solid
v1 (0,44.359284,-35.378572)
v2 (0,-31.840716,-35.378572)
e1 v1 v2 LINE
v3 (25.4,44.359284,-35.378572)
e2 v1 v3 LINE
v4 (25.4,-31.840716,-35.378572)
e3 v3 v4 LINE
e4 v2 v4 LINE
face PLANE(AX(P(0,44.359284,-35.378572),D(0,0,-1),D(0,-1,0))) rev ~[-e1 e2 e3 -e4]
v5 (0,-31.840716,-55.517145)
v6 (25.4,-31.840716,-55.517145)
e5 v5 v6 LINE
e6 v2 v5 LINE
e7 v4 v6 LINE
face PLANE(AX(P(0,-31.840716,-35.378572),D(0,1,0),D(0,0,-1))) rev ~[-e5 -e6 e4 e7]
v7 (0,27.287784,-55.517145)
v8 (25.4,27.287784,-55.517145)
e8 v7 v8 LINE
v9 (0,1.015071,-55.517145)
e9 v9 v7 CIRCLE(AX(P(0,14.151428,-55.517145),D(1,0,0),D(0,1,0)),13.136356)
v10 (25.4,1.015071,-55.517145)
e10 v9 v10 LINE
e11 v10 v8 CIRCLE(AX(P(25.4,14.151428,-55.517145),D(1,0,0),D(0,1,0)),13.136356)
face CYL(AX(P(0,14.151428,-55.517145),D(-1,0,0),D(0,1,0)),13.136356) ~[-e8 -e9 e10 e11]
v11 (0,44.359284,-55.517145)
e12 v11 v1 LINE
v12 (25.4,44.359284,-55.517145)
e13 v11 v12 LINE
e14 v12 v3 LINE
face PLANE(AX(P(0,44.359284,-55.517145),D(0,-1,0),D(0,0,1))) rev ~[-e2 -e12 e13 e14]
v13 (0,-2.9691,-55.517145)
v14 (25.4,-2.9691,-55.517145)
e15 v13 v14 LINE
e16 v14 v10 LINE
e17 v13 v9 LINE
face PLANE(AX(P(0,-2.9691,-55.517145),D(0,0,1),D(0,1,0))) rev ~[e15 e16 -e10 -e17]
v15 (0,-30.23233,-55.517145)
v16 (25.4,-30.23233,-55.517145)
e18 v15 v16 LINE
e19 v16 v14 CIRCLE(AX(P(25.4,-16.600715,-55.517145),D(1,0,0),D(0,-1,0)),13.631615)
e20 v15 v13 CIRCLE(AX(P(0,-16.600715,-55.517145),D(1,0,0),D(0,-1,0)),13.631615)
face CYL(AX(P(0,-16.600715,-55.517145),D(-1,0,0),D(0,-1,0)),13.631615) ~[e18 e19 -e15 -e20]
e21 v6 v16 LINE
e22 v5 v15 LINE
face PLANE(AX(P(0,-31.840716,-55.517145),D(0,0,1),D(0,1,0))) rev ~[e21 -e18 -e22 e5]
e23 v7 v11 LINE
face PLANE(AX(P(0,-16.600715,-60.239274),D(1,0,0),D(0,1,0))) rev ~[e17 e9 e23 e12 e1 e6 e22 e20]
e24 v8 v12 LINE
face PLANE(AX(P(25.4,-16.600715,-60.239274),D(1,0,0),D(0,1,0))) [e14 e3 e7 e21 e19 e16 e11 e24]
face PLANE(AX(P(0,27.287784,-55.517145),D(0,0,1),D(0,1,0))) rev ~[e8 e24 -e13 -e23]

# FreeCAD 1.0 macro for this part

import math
import FreeCAD as App
import Part
import Sketcher

V = App.Vector
Q = App.Units.Quantity

doc = App.newDocument("Part")
params = doc.addObject("Spreadsheet::Sheet", "Params")
for row, (alias, value) in enumerate([
    ("sketch1_width", "3 in"),
    ("pad1_length", "1 in"),
], start=1):
    params.set(f"A{row}", alias)
    params.set(f"B{row}", "=" + value)
    params.setAlias(f"B{row}", alias)

body = doc.addObject("PartDesign::Body", "Body")

# Sketch on YZ plane
sketch1 = doc.addObject("Sketcher::SketchObject", "Sketch")
body.addObject(sketch1)
sketch1.AttachmentSupport = (doc.YZ_Plane, [""])
sketch1.MapMode = "FlatFace"
sketch1.addGeometry([
    Part.ArcOfCircle(Part.Circle(V(-16.600715, -55.517145, 0), V(0, 0, 1), 13.631615), math.radians(180), math.radians(360)),  # 0
    Part.LineSegment(V(-2.9691, -55.517145, 0), V(1.015071, -55.517145, 0)),  # 1
    Part.ArcOfCircle(Part.Circle(V(14.151428, -55.517145, 0), V(0, 0, 1), 13.136356), math.radians(180), math.radians(360)),  # 2
    Part.LineSegment(V(27.287784, -55.517145, 0), V(44.359284, -55.517145, 0)),  # 3
    Part.LineSegment(V(44.359284, -55.517145, 0), V(44.359284, -35.378572, 0)),  # 4
    Part.LineSegment(V(44.359284, -35.378572, 0), V(-31.840716, -35.378572, 0)),  # 5
    Part.LineSegment(V(-31.840716, -35.378572, 0), V(-31.840716, -55.517145, 0)),  # 6
    Part.LineSegment(V(-31.840716, -55.517145, 0), V(-30.23233, -55.517145, 0)),  # 7
], False)
sketch1.addConstraint([
    Sketcher.Constraint("Coincident", 0, 2, 1, 1),
    Sketcher.Constraint("Coincident", 1, 2, 2, 1),
    Sketcher.Constraint("Coincident", 2, 2, 3, 1),
    Sketcher.Constraint("Coincident", 3, 2, 4, 1),
    Sketcher.Constraint("Coincident", 4, 2, 5, 1),
    Sketcher.Constraint("Coincident", 5, 2, 6, 1),
    Sketcher.Constraint("Coincident", 6, 2, 7, 1),
    Sketcher.Constraint("Coincident", 7, 2, 0, 1),
    Sketcher.Constraint("Horizontal", 1),
    Sketcher.Constraint("Horizontal", 3),
    Sketcher.Constraint("Vertical", 4),
    Sketcher.Constraint("Horizontal", 5),
    Sketcher.Constraint("Vertical", 6),
    Sketcher.Constraint("Horizontal", 7),
    Sketcher.Constraint("Horizontal", 0, 3, 2, 3),
    Sketcher.Constraint("Horizontal", 2, 3, 0, 2),
    Sketcher.Constraint("Horizontal", 1, 2, 2, 2),
    Sketcher.Constraint("Horizontal", 3, 2, 6, 2),
    Sketcher.Constraint("DistanceX", 5, 2, 5, 1, Q("3 in")),
    Sketcher.Constraint("DistanceX", 0, 3, 3, 2, Q("2.4 in")),
    Sketcher.Constraint("DistanceX", 3, 1, 3, 2, Q("17.0715 mm")),
    Sketcher.Constraint("Radius", 0, Q("13.631615 mm")),
    Sketcher.Constraint("Radius", 2, Q("13.136356 mm")),
    Sketcher.Constraint("DistanceX", 0, 2, -1, 1, Q("2.9691 mm")),
    Sketcher.Constraint("DistanceY", 4, 1, 4, 2, Q("20.138573 mm")),
    Sketcher.Constraint("DistanceY", 4, 2, -1, 1, Q("35.378572 mm")),
])
sketch1.setExpression("Constraints[18]", "Params.sketch1_width")
pad1 = doc.addObject("PartDesign::Pad", "Pad")
body.addObject(pad1)
pad1.Profile = sketch1
pad1.setExpression("Length", "Params.pad1_length")

doc.recompute()
